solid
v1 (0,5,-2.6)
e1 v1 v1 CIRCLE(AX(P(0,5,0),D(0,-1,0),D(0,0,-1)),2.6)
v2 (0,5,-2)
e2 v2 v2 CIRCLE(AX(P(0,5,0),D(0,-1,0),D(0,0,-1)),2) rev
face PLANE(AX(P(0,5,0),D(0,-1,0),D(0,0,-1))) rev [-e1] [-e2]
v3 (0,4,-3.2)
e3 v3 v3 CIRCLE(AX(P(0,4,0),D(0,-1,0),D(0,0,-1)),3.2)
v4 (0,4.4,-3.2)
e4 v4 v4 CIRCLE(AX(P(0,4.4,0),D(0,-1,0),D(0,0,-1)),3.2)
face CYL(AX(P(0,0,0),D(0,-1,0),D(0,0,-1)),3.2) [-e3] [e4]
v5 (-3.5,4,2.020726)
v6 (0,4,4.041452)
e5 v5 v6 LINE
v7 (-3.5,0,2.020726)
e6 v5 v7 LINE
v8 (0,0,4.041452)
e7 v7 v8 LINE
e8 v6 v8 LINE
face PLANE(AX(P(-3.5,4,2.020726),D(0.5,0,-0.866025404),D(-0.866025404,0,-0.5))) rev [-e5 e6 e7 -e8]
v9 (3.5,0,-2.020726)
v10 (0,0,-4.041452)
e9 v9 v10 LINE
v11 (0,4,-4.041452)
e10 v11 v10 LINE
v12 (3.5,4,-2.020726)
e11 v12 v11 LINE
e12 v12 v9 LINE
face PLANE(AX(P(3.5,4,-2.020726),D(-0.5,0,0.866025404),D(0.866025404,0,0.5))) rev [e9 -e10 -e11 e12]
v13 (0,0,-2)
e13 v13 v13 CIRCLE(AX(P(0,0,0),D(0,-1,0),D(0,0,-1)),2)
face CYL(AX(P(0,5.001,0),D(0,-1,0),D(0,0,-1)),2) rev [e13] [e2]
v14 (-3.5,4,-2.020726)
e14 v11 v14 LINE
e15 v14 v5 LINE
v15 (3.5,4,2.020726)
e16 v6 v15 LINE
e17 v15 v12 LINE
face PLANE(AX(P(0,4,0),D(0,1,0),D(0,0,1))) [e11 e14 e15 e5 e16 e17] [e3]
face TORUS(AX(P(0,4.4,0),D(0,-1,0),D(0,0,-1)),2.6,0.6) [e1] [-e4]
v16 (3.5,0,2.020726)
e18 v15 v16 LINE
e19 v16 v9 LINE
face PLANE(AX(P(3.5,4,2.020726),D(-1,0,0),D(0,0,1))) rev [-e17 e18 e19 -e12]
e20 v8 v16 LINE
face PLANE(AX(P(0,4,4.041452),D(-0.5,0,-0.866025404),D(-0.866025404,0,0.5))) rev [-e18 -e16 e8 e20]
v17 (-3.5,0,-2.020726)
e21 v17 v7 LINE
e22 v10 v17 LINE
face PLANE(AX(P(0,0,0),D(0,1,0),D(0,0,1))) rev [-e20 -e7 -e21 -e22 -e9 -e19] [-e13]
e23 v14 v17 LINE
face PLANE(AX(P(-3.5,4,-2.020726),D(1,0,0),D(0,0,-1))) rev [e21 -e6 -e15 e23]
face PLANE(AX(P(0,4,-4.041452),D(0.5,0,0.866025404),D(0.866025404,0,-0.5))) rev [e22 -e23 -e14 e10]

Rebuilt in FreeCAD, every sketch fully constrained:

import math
import FreeCAD as App
import Part
import Sketcher

V = App.Vector
Q = App.Units.Quantity


def add_polygon(sketch, points):
    """Adds a closed chain of lines whose ends are joined by coincident constraints."""
    first, n = sketch.GeometryCount, len(points)
    for a, b in zip(points, points[1:] + points[:1]):
        sketch.addGeometry(Part.LineSegment(App.Vector(*a, 0), App.Vector(*b, 0)), False)
    for i in range(n):
        sketch.addConstraint(Sketcher.Constraint("Coincident", first + i, 2, first + (i + 1) % n, 1))

doc = App.newDocument("Part")
body = doc.addObject("PartDesign::Body", "Body")

sketch1 = doc.addObject("Sketcher::SketchObject", "Sketch")
body.addObject(sketch1)
sketch1.AttachmentSupport = (doc.XZ_Plane, [""])
sketch1.MapMode = "FlatFace"
add_polygon(sketch1, [(0, -4.041452), (-3.5, -2.020726), (-3.5, 2.020726), (0, 4.041452), (3.5, 2.020726), (3.5, -2.020726)])
sketch1.addConstraint(Sketcher.Constraint("Vertical", 1))
sketch1.addConstraint(Sketcher.Constraint("Vertical", 4))
sketch1.addConstraint(Sketcher.Constraint("Symmetric", 0, 2, 3, 2, -1, 1))
sketch1.addConstraint(Sketcher.Constraint("Symmetric", 2, 2, 5, 2, -1, 1))
sketch1.addConstraint(Sketcher.Constraint("PointOnObject", 2, 2, -2))
sketch1.addConstraint(Sketcher.Constraint("Parallel", 2, 5))
sketch1.addConstraint(Sketcher.Constraint("Horizontal", 1, 2, 3, 2))
sketch1.addConstraint(Sketcher.Constraint("Angle", 0, Q("150 deg")))
sketch1.addConstraint(Sketcher.Constraint("DistanceX", 1, 2, 3, 2, Q("7 mm")))
sketch1.addConstraint(Sketcher.Constraint("DistanceY", 1, 1, 1, 2, Q("4.041452 mm")))
pad1 = doc.addObject("PartDesign::Pad", "Pad")
body.addObject(pad1)
pad1.Profile = sketch1
pad1.Length = 4
pad1.Reversed = True

sketch2 = doc.addObject("Sketcher::SketchObject", "Sketch001")
body.addObject(sketch2)
sketch2.AttachmentSupport = (doc.XY_Plane, [""])
sketch2.MapMode = "FlatFace"
sketch2.addGeometry(Part.LineSegment(V(0, 5, 0), V(0, 4, 0)), False)
sketch2.addGeometry(Part.LineSegment(V(0, 4, 0), V(3.2, 4, 0)), False)
sketch2.addGeometry(Part.LineSegment(V(3.2, 4, 0), V(3.2, 4.4, 0)), False)
sketch2.addGeometry(Part.ArcOfCircle(Part.Circle(V(2.6, 4.4, 0), V(0, 0, 1), 0.6), math.radians(0), math.radians(90)), False)
sketch2.addGeometry(Part.LineSegment(V(2.6, 5, 0), V(0, 5, 0)), False)
sketch2.addConstraint(Sketcher.Constraint("Coincident", 0, 2, 1, 1))
sketch2.addConstraint(Sketcher.Constraint("Coincident", 1, 2, 2, 1))
sketch2.addConstraint(Sketcher.Constraint("Tangent", 2, 2, 3, 1))
sketch2.addConstraint(Sketcher.Constraint("Tangent", 3, 2, 4, 1))
sketch2.addConstraint(Sketcher.Constraint("Coincident", 4, 2, 0, 1))
sketch2.addConstraint(Sketcher.Constraint("Vertical", 0))
sketch2.addConstraint(Sketcher.Constraint("Horizontal", 1))
sketch2.addConstraint(Sketcher.Constraint("Vertical", 2))
sketch2.addConstraint(Sketcher.Constraint("Horizontal", 4))
sketch2.addConstraint(Sketcher.Constraint("PointOnObject", 0, 2, -2))
sketch2.addConstraint(Sketcher.Constraint("Radius", 3, Q("0.6 mm")))
sketch2.addConstraint(Sketcher.Constraint("DistanceY", 0, 2, 0, 1, Q("1 mm")))
sketch2.addConstraint(Sketcher.Constraint("DistanceX", 1, 1, 1, 2, Q("3.2 mm")))
sketch2.addConstraint(Sketcher.Constraint("DistanceY", -1, 1, 0, 2, Q("4 mm")))
revolution = doc.addObject("PartDesign::Revolution", "Revolution")
body.addObject(revolution)
revolution.Profile = sketch2
revolution.ReferenceAxis = (sketch2, ["V_Axis"])
revolution.Angle = 360

sketch3 = doc.addObject("Sketcher::SketchObject", "Sketch002")
body.addObject(sketch3)
sketch3.AttachmentSupport = (doc.XZ_Plane, [""])
sketch3.MapMode = "FlatFace"
sketch3.addGeometry(Part.Circle(V(0, 0, 0), V(0, 0, 1), 2), False)
sketch3.addConstraint(Sketcher.Constraint("Coincident", 0, 3, -1, 1))
sketch3.addConstraint(Sketcher.Constraint("Diameter", 0, Q("4 mm")))
pocket1 = doc.addObject("PartDesign::Pocket", "Pocket")
body.addObject(pocket1)
pocket1.Profile = sketch3
pocket1.Type = "UpToFirst"

doc.recompute()
